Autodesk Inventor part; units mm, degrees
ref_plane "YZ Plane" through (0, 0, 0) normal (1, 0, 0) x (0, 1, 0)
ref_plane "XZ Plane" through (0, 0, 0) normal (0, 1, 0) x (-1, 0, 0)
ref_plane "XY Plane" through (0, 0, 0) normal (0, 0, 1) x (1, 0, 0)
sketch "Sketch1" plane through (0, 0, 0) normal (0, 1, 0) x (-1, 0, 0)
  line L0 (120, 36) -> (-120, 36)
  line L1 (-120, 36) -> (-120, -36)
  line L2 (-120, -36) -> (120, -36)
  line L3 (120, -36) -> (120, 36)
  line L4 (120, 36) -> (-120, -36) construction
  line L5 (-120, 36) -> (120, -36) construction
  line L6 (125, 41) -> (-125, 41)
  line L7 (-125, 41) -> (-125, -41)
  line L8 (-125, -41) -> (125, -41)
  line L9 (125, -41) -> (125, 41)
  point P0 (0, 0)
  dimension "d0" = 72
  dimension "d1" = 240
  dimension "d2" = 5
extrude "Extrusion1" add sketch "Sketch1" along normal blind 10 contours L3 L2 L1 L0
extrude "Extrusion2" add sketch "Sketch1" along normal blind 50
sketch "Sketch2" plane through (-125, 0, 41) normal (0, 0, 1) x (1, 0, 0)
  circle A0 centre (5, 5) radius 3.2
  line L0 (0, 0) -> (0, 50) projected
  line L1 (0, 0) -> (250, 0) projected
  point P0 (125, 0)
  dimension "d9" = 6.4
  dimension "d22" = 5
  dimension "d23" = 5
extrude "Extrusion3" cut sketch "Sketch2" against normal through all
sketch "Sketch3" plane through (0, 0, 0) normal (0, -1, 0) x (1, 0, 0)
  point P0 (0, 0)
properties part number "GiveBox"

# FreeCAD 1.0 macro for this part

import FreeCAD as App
import Part
import Sketcher

V = App.Vector
Q = App.Units.Quantity

doc = App.newDocument("Part")
body = doc.addObject("PartDesign::Body", "Body")

sketch1 = doc.addObject("Sketcher::SketchObject", "Sketch")
body.addObject(sketch1)
sketch1.AttachmentSupport = (doc.XZ_Plane, [""])
sketch1.MapMode = "FlatFace"
sketch1.addGeometry([
    Part.LineSegment(V(-120, -36, 0), V(-120, 36, 0)),
    Part.LineSegment(V(-120, 36, 0), V(120, 36, 0)),
    Part.LineSegment(V(120, 36, 0), V(120, -36, 0)),
    Part.LineSegment(V(120, -36, 0), V(-120, -36, 0)),
], False)
sketch1.addConstraint([
    Sketcher.Constraint("Coincident", 0, 2, 1, 1),
    Sketcher.Constraint("Coincident", 1, 2, 2, 1),
    Sketcher.Constraint("Coincident", 2, 2, 3, 1),
    Sketcher.Constraint("Coincident", 3, 2, 0, 1),
    Sketcher.Constraint("Vertical", 0),
    Sketcher.Constraint("Horizontal", 1),
    Sketcher.Constraint("Vertical", 2),
    Sketcher.Constraint("Horizontal", 3),
    Sketcher.Constraint("Symmetric", 0, 2, 2, 2, -1, 1),
    Sketcher.Constraint("DistanceX", 1, 1, 1, 2, Q("240 mm")),
    Sketcher.Constraint("DistanceY", 0, 1, 0, 2, Q("72 mm")),
])
pad1 = doc.addObject("PartDesign::Pad", "Pad")
body.addObject(pad1)
pad1.Profile = sketch1
pad1.Length = 10
pad1.Reversed = True

sketch2 = doc.addObject("Sketcher::SketchObject", "Sketch001")
body.addObject(sketch2)
sketch2.AttachmentSupport = (doc.XZ_Plane, [""])
sketch2.MapMode = "FlatFace"
sketch2.addGeometry([
    Part.LineSegment(V(-125, -41, 0), V(-125, 41, 0)),
    Part.LineSegment(V(-125, 41, 0), V(125, 41, 0)),
    Part.LineSegment(V(125, 41, 0), V(125, -41, 0)),
    Part.LineSegment(V(125, -41, 0), V(-125, -41, 0)),
    Part.LineSegment(V(120, 36, 0), V(-120, 36, 0)),
    Part.LineSegment(V(-120, 36, 0), V(-120, -36, 0)),
    Part.LineSegment(V(-120, -36, 0), V(120, -36, 0)),
    Part.LineSegment(V(120, -36, 0), V(120, 36, 0)),
], False)
sketch2.addConstraint([
    Sketcher.Constraint("Coincident", 0, 2, 1, 1),
    Sketcher.Constraint("Coincident", 1, 2, 2, 1),
    Sketcher.Constraint("Coincident", 2, 2, 3, 1),
    Sketcher.Constraint("Coincident", 3, 2, 0, 1),
    Sketcher.Constraint("Coincident", 4, 2, 5, 1),
    Sketcher.Constraint("Coincident", 5, 2, 6, 1),
    Sketcher.Constraint("Coincident", 6, 2, 7, 1),
    Sketcher.Constraint("Coincident", 7, 2, 4, 1),
    Sketcher.Constraint("Vertical", 0),
    Sketcher.Constraint("Horizontal", 1),
    Sketcher.Constraint("Vertical", 2),
    Sketcher.Constraint("Horizontal", 3),
    Sketcher.Constraint("Horizontal", 4),
    Sketcher.Constraint("Vertical", 5),
    Sketcher.Constraint("Horizontal", 6),
    Sketcher.Constraint("Vertical", 7),
    Sketcher.Constraint("Symmetric", 0, 2, 2, 2, -1, 1),
    Sketcher.Constraint("Symmetric", 4, 2, 6, 2, -1, 1),
    Sketcher.Constraint("DistanceX", 4, 2, 4, 1, Q("240 mm")),
    Sketcher.Constraint("DistanceY", 5, 2, 5, 1, Q("72 mm")),
    Sketcher.Constraint("DistanceX", 0, 2, 4, 2, Q("5 mm")),
    Sketcher.Constraint("DistanceY", 4, 2, 0, 2, Q("5 mm")),
])
pad2 = doc.addObject("PartDesign::Pad", "Pad001")
body.addObject(pad2)
pad2.Profile = sketch2
pad2.Length = 50
pad2.Reversed = True

sketch3 = doc.addObject("Sketcher::SketchObject", "Sketch002")
body.addObject(sketch3)
sketch3.AttachmentSupport = (doc.XY_Plane, [""])
sketch3.MapMode = "FlatFace"
sketch3.AttachmentOffset = App.Placement(V(0, 0, 41), App.Rotation())
sketch3.addGeometry(Part.Circle(V(-120, 5, 0), V(0, 0, 1), 3.2), False)
sketch3.addConstraint([
    Sketcher.Constraint("Diameter", 0, Q("6.4 mm")),
    Sketcher.Constraint("DistanceY", -1, 1, 0, 3, Q("5 mm")),
    Sketcher.Constraint("DistanceX", 0, 3, -1, 1, Q("120 mm")),
])
pocket1 = doc.addObject("PartDesign::Pocket", "Pocket")
body.addObject(pocket1)
pocket1.Profile = sketch3
pocket1.Type = "ThroughAll"

doc.recompute()
